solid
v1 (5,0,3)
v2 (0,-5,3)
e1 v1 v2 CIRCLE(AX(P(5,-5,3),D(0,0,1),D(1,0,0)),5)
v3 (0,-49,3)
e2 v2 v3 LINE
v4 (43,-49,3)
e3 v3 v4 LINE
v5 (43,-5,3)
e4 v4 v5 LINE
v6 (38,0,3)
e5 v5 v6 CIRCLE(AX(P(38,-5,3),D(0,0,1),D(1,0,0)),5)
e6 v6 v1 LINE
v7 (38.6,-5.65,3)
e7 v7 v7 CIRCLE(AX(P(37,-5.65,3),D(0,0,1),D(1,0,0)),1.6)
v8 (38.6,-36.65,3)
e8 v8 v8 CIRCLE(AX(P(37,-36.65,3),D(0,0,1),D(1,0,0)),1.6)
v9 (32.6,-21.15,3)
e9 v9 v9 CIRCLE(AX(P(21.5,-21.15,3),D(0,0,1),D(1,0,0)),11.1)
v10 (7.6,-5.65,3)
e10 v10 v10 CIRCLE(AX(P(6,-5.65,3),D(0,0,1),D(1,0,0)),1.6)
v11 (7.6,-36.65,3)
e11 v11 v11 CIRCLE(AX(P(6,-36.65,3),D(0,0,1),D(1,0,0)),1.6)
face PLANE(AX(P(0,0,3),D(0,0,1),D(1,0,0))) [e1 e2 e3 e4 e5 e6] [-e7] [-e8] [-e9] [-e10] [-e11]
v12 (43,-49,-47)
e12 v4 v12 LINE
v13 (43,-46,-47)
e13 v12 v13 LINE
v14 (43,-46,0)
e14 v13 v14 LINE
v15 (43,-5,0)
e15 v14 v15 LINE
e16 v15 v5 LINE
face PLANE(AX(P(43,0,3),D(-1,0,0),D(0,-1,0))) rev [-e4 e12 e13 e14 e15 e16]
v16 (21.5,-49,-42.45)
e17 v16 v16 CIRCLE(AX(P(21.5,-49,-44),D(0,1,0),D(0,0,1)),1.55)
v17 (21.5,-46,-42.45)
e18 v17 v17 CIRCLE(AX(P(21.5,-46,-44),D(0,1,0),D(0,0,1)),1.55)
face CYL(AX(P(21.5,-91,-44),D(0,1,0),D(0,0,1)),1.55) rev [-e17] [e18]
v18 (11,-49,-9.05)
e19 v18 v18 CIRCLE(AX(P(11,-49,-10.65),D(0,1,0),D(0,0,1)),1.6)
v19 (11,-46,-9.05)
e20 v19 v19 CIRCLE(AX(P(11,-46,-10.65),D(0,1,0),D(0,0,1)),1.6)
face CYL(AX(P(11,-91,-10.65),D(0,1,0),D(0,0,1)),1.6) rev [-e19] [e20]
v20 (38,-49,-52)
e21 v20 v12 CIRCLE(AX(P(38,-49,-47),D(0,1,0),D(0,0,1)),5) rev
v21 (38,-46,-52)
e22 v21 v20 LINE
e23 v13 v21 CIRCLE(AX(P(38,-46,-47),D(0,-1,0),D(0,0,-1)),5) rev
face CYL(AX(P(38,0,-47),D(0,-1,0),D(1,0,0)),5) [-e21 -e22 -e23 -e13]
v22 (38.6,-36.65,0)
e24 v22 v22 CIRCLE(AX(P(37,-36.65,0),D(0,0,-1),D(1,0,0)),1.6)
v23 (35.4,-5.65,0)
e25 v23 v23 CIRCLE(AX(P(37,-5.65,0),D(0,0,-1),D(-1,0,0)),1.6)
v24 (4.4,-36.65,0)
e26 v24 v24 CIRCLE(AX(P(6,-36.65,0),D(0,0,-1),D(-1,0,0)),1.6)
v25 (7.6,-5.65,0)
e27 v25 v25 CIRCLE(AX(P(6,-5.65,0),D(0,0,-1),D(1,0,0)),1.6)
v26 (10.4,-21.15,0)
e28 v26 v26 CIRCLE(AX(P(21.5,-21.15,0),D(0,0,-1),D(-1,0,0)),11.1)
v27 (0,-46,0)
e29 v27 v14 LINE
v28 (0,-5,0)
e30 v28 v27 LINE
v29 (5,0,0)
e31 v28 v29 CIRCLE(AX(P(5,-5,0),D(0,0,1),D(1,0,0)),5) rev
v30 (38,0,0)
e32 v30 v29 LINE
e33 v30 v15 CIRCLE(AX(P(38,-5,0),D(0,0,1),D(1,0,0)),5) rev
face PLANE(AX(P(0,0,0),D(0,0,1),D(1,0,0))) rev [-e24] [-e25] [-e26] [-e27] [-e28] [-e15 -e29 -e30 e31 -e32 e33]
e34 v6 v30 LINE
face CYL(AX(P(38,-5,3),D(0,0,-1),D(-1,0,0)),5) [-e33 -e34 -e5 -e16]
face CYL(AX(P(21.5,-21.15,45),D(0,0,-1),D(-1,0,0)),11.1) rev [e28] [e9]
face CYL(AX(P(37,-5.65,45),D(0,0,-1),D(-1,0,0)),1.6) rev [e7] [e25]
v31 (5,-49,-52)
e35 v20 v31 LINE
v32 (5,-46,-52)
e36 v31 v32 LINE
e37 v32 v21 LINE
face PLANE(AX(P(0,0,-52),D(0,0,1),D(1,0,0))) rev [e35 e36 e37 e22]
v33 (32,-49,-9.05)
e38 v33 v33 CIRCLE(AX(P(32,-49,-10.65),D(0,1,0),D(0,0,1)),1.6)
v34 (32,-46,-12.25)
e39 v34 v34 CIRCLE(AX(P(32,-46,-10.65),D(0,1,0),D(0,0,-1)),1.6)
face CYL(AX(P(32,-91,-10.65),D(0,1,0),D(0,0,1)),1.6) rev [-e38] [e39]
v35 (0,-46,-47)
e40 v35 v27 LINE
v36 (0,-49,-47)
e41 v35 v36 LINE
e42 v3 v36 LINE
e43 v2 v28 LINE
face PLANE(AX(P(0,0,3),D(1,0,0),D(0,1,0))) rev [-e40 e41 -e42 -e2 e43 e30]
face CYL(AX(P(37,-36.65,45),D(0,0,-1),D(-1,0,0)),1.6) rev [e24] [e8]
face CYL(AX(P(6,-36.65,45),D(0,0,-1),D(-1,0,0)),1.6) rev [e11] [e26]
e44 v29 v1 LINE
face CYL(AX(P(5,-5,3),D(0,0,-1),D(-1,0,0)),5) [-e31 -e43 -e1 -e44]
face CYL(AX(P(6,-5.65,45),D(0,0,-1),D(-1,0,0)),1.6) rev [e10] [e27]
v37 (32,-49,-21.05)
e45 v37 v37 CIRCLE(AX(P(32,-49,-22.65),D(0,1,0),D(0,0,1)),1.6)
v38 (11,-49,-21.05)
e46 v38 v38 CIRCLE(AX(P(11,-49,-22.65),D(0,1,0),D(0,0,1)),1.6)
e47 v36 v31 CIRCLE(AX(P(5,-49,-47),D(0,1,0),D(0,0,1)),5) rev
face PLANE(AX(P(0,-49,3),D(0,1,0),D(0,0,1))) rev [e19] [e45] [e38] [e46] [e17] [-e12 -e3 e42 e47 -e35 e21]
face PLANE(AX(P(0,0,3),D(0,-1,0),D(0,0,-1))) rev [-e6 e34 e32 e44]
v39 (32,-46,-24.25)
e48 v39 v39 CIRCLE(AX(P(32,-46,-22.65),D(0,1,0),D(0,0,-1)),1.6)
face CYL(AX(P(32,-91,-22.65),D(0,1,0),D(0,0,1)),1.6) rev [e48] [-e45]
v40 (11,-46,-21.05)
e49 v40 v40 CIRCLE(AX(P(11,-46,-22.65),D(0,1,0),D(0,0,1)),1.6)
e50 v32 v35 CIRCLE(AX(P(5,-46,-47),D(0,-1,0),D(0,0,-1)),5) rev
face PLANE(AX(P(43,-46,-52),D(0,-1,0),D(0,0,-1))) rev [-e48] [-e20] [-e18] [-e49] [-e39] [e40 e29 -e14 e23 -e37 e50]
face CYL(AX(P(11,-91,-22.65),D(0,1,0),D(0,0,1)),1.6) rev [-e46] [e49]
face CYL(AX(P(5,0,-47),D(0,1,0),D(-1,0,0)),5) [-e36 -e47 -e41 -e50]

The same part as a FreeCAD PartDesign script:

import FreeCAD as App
import Part
import Sketcher
from FreeCAD import Vector


def edges_at(feature, points):
    """Names of the edges that pass closest to the given points."""
    edges = feature.Shape.Edges
    near = lambda p: min(range(len(edges)), key=lambda i: edges[i].distToShape(Part.Vertex(*p))[0])
    return sorted({f"Edge{near(p) + 1}" for p in points})

doc = App.newDocument("Part")
body = doc.addObject("PartDesign::Body", "Body")

sketch1 = doc.addObject("Sketcher::SketchObject", "Sketch")
body.addObject(sketch1)
sketch1.AttachmentSupport = (doc.XY_Plane, [""])
sketch1.MapMode = "FlatFace"
sketch1.addGeometry(Part.LineSegment(Vector(0, 0, 0), Vector(0, -49, 0)), False)
sketch1.addGeometry(Part.LineSegment(Vector(0, -49, 0), Vector(43, -49, 0)), False)
sketch1.addGeometry(Part.LineSegment(Vector(43, -49, 0), Vector(43, 0, 0)), False)
sketch1.addGeometry(Part.LineSegment(Vector(43, 0, 0), Vector(0, 0, 0)), False)
sketch1.addConstraint(Sketcher.Constraint("Coincident", 0, 2, 1, 1))
sketch1.addConstraint(Sketcher.Constraint("Coincident", 1, 2, 2, 1))
sketch1.addConstraint(Sketcher.Constraint("Coincident", 2, 2, 3, 1))
sketch1.addConstraint(Sketcher.Constraint("Coincident", 3, 2, 0, 1))
sketch1.addConstraint(Sketcher.Constraint("Vertical", 0))
sketch1.addConstraint(Sketcher.Constraint("Horizontal", 1))
sketch1.addConstraint(Sketcher.Constraint("Vertical", 2))
sketch1.addConstraint(Sketcher.Constraint("Horizontal", 3))
sketch1.addConstraint(Sketcher.Constraint("Coincident", 3, 2, -1, 1))
sketch1.addConstraint(Sketcher.Constraint("DistanceX", 1, 1, 1, 2, 43.0))
sketch1.addConstraint(Sketcher.Constraint("DistanceY", 0, 2, 0, 1, 49.0))
pad1 = doc.addObject("PartDesign::Pad", "Pad")
body.addObject(pad1)
pad1.Profile = sketch1
pad1.Length = 3

sketch2 = doc.addObject("Sketcher::SketchObject", "Sketch001")
body.addObject(sketch2)
sketch2.AttachmentSupport = (doc.XY_Plane, [""])
sketch2.MapMode = "FlatFace"
sketch2.addGeometry(Part.Circle(Vector(21.5, -21.1, 0), Vector(0, 0, 1), 11.1), False)
sketch2.addGeometry(Part.Circle(Vector(37, -5.7, 0), Vector(0, 0, 1), 1.6), False)
sketch2.addGeometry(Part.Circle(Vector(6, -5.7, 0), Vector(0, 0, 1), 1.6), False)
sketch2.addGeometry(Part.Circle(Vector(6, -36.6, 0), Vector(0, 0, 1), 1.6), False)
sketch2.addGeometry(Part.Circle(Vector(37, -36.6, 0), Vector(0, 0, 1), 1.6), False)
sketch2.addConstraint(Sketcher.Constraint("Equal", 1, 2))
sketch2.addConstraint(Sketcher.Constraint("Equal", 2, 3))
sketch2.addConstraint(Sketcher.Constraint("Equal", 3, 4))
sketch2.addConstraint(Sketcher.Constraint("Horizontal", 1, 3, 2, 3))
sketch2.addConstraint(Sketcher.Constraint("Horizontal", 3, 3, 4, 3))
sketch2.addConstraint(Sketcher.Constraint("Vertical", 2, 3, 3, 3))
sketch2.addConstraint(Sketcher.Constraint("Vertical", 1, 3, 4, 3))
sketch2.addConstraint(Sketcher.Constraint("Diameter", 0, 22.2))
sketch2.addConstraint(Sketcher.Constraint("Diameter", 1, 3.2))
sketch2.addConstraint(Sketcher.Constraint("DistanceX", -1, 1, 1, 3, 37.0))
sketch2.addConstraint(Sketcher.Constraint("DistanceX", -1, 1, 2, 3, 6.0))
sketch2.addConstraint(Sketcher.Constraint("DistanceY", 3, 3, 2, 3, 31.0))
sketch2.addConstraint(Sketcher.Constraint("DistanceX", -1, 1, 0, 3, 21.5))
sketch2.addConstraint(Sketcher.Constraint("DistanceY", 0, 3, 1, 3, 15.5))
sketch2.addConstraint(Sketcher.Constraint("DistanceY", 0, 3, -1, 1, 21.15))
pocket1 = doc.addObject("PartDesign::Pocket", "Pocket")
body.addObject(pocket1)
pocket1.Profile = sketch2
pocket1.Length = 45
pocket1.Reversed = True

sketch3 = doc.addObject("Sketcher::SketchObject", "Sketch002")
body.addObject(sketch3)
sketch3.AttachmentSupport = (doc.XY_Plane, [""])
sketch3.MapMode = "FlatFace"
sketch3.addGeometry(Part.LineSegment(Vector(43, -46, 0), Vector(43, -49, 0)), False)
sketch3.addGeometry(Part.LineSegment(Vector(43, -49, 0), Vector(0, -49, 0)), False)
sketch3.addGeometry(Part.LineSegment(Vector(0, -49, 0), Vector(0, -46, 0)), False)
sketch3.addGeometry(Part.LineSegment(Vector(0, -46, 0), Vector(43, -46, 0)), False)
sketch3.addConstraint(Sketcher.Constraint("Coincident", 0, 2, 1, 1))
sketch3.addConstraint(Sketcher.Constraint("Coincident", 1, 2, 2, 1))
sketch3.addConstraint(Sketcher.Constraint("Coincident", 2, 2, 3, 1))
sketch3.addConstraint(Sketcher.Constraint("Coincident", 3, 2, 0, 1))
sketch3.addConstraint(Sketcher.Constraint("Vertical", 0))
sketch3.addConstraint(Sketcher.Constraint("Horizontal", 1))
sketch3.addConstraint(Sketcher.Constraint("Vertical", 2))
sketch3.addConstraint(Sketcher.Constraint("Horizontal", 3))
sketch3.addConstraint(Sketcher.Constraint("PointOnObject", 1, 2, -2))
sketch3.addConstraint(Sketcher.Constraint("DistanceX", 1, 2, 1, 1, 43.0))
sketch3.addConstraint(Sketcher.Constraint("DistanceY", 0, 2, 0, 1, 3.0))
sketch3.addConstraint(Sketcher.Constraint("DistanceY", 0, 2, -1, 1, 49.0))
pad2 = doc.addObject("PartDesign::Pad", "Pad001")
body.addObject(pad2)
pad2.Profile = sketch3
pad2.Length = 52
pad2.Reversed = True

sketch4 = doc.addObject("Sketcher::SketchObject", "Sketch003")
body.addObject(sketch4)
sketch4.AttachmentSupport = (doc.XZ_Plane, [""])
sketch4.MapMode = "FlatFace"
sketch4.AttachmentOffset = App.Placement(Vector(0, 0, 46), App.Rotation())
sketch4.addGeometry(Part.Circle(Vector(11, -10.7, 0), Vector(0, 0, 1), 1.6), False)
sketch4.addGeometry(Part.Circle(Vector(11, -22.6, 0), Vector(0, 0, 1), 1.6), False)
sketch4.addGeometry(Part.Circle(Vector(32, -10.7, 0), Vector(0, 0, 1), 1.6), False)
sketch4.addGeometry(Part.Circle(Vector(32, -22.6, 0), Vector(0, 0, 1), 1.6), False)
sketch4.addGeometry(Part.Circle(Vector(21.5, -44, 0), Vector(0, 0, 1), 1.6), False)
sketch4.addConstraint(Sketcher.Constraint("Equal", 0, 1))
sketch4.addConstraint(Sketcher.Constraint("Equal", 1, 2))
sketch4.addConstraint(Sketcher.Constraint("Equal", 2, 3))
sketch4.addConstraint(Sketcher.Constraint("Horizontal", 0, 3, 2, 3))
sketch4.addConstraint(Sketcher.Constraint("Horizontal", 1, 3, 3, 3))
sketch4.addConstraint(Sketcher.Constraint("Vertical", 0, 3, 1, 3))
sketch4.addConstraint(Sketcher.Constraint("Vertical", 2, 3, 3, 3))
sketch4.addConstraint(Sketcher.Constraint("Diameter", 0, 3.2))
sketch4.addConstraint(Sketcher.Constraint("Diameter", 4, 3.1))
sketch4.addConstraint(Sketcher.Constraint("DistanceX", -1, 1, 0, 3, 11.0))
sketch4.addConstraint(Sketcher.Constraint("DistanceX", -1, 1, 2, 3, 32.0))
sketch4.addConstraint(Sketcher.Constraint("DistanceY", 4, 3, -1, 1, 44.0))
sketch4.addConstraint(Sketcher.Constraint("DistanceY", 1, 3, 0, 3, 12.0))
sketch4.addConstraint(Sketcher.Constraint("DistanceX", -1, 1, 4, 3, 21.5))
sketch4.addConstraint(Sketcher.Constraint("DistanceY", 0, 3, -1, 1, 10.65))
pocket2 = doc.addObject("PartDesign::Pocket", "Pocket001")
body.addObject(pocket2)
pocket2.Profile = sketch4
pocket2.Length = 45
pocket2.Reversed = True
doc.recompute()

fillet = doc.addObject("PartDesign::Fillet", "Fillet")
body.addObject(fillet)
fillet.Base = (pocket2, edges_at(pocket2, [
    (43, -47.5, -52),
    (0, -47.5, -52),
    (0, 0, 1.5),
    (43, 0, 1.5),
]))
fillet.Radius = 5

doc.recompute()
